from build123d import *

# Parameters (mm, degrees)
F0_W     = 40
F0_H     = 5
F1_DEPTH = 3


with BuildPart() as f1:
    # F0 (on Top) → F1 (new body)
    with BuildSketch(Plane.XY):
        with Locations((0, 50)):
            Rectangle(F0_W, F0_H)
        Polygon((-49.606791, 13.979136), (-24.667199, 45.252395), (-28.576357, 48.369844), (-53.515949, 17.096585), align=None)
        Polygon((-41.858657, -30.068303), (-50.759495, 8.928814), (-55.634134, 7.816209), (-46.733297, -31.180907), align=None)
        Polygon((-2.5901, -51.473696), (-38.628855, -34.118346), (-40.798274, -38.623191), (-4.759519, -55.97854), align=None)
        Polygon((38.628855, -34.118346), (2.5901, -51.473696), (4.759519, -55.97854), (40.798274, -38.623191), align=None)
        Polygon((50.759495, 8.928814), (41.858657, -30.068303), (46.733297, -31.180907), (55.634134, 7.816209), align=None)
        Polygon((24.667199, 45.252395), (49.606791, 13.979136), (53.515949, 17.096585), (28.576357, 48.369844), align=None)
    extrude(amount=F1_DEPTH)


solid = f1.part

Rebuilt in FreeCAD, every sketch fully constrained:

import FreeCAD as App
import Part
import Sketcher
from FreeCAD import Vector
Q = App.Units.Quantity


def add_polygon(sketch, points):
    """Adds a closed chain of lines whose ends are joined by coincident constraints."""
    first, n = sketch.GeometryCount, len(points)
    for a, b in zip(points, points[1:] + points[:1]):
        sketch.addGeometry(Part.LineSegment(App.Vector(*a, 0), App.Vector(*b, 0)), False)
    for i in range(n):
        sketch.addConstraint(Sketcher.Constraint("Coincident", first + i, 2, first + (i + 1) % n, 1))

doc = App.newDocument("Part")
body = doc.addObject("PartDesign::Body", "Body")
body.AllowCompound = True

sketch1 = body.newObject("Sketcher::SketchObject", "Sketch")
sketch1.AttachmentSupport = (doc.getObject("XY_Plane"), [""])
sketch1.MapMode = "FlatFace"
add_polygon(sketch1, [(-20, 52.5), (-20, 47.5), (20, 47.5), (20, 52.5)])
add_polygon(sketch1, [(-49.6, 14), (-24.7, 45.3), (-28.6, 48.4), (-53.5, 17.1)])
add_polygon(sketch1, [(-41.9, -30.1), (-50.8, 8.9), (-55.6, 7.8), (-46.7, -31.2)])
add_polygon(sketch1, [(-2.6, -51.5), (-38.6, -34.1), (-40.8, -38.6), (-4.8, -56)])
add_polygon(sketch1, [(38.6, -34.1), (2.6, -51.5), (4.8, -56), (40.8, -38.6)])
add_polygon(sketch1, [(50.8, 8.9), (41.9, -30.1), (46.7, -31.2), (55.6, 7.8)])
add_polygon(sketch1, [(24.7, 45.3), (49.6, 14), (53.5, 17.1), (28.6, 48.4)])
sketch1.addConstraint([
    Sketcher.Constraint("Vertical", 0),
    Sketcher.Constraint("Horizontal", 1),
    Sketcher.Constraint("Vertical", 2),
    Sketcher.Constraint("Horizontal", 3),
    Sketcher.Constraint("Symmetric", 15, 2, 16, 2, -2),
    Sketcher.Constraint("Symmetric", 14, 2, 17, 2, -2),
    Sketcher.Constraint("Symmetric", 13, 2, 18, 2, -2),
    Sketcher.Constraint("Symmetric", 12, 2, 19, 2, -2),
    Sketcher.Constraint("Symmetric", 11, 2, 20, 2, -2),
    Sketcher.Constraint("Symmetric", 10, 2, 21, 2, -2),
    Sketcher.Constraint("Symmetric", 9, 2, 22, 2, -2),
    Sketcher.Constraint("Symmetric", 8, 2, 23, 2, -2),
    Sketcher.Constraint("Symmetric", 7, 2, 24, 2, -2),
    Sketcher.Constraint("Symmetric", 6, 2, 25, 2, -2),
    Sketcher.Constraint("Symmetric", 5, 2, 26, 2, -2),
    Sketcher.Constraint("Symmetric", 4, 2, 27, 2, -2),
    Sketcher.Constraint("Perpendicular", 4, 5),
    Sketcher.Constraint("Perpendicular", 5, 6),
    Sketcher.Constraint("Perpendicular", 6, 7),
    Sketcher.Constraint("Perpendicular", 8, 9),
    Sketcher.Constraint("Perpendicular", 9, 10),
    Sketcher.Constraint("Perpendicular", 10, 11),
    Sketcher.Constraint("Perpendicular", 12, 13),
    Sketcher.Constraint("Perpendicular", 13, 14),
    Sketcher.Constraint("Perpendicular", 14, 15),
    Sketcher.Constraint("Equal", 6, 8),
    Sketcher.Constraint("Equal", 7, 9),
    Sketcher.Constraint("Equal", 10, 12),
    Sketcher.Constraint("Equal", 11, 13),
    Sketcher.Constraint("DistanceX", 1, 1, 1, 2, Q("40 mm")),
    Sketcher.Constraint("DistanceY", 0, 2, 0, 1, Q("5 mm")),
    Sketcher.Constraint("Distance", 4, Q("40 mm")),
    Sketcher.Constraint("Distance", 5, Q("5 mm")),
    Sketcher.Constraint("DistanceX", 0, 2, -1, 1, Q("20 mm")),
    Sketcher.Constraint("DistanceY", -1, 1, 0, 2, Q("47.5 mm")),
    Sketcher.Constraint("DistanceX", 4, 2, -1, 1, Q("24.667199 mm")),
    Sketcher.Constraint("DistanceX", 15, 2, -1, 1, Q("2.5901 mm")),
    Sketcher.Constraint("DistanceX", 8, 2, 10, 2, Q("4.026198 mm")),
    Sketcher.Constraint("DistanceX", 10, 2, 4, 2, Q("22.066098 mm")),
    Sketcher.Constraint("DistanceY", 10, 2, 4, 2, Q("76.433302 mm")),
    Sketcher.Constraint("DistanceX", 11, 2, 12, 2, Q("3.229802 mm")),
    Sketcher.Constraint("DistanceY", 13, 2, 9, 2, Q("46.4394 mm")),
    Sketcher.Constraint("DistanceX", 6, 2, -1, 1, Q("53.515949 mm")),
    Sketcher.Constraint("DistanceY", -1, 1, 9, 2, Q("7.816209 mm")),
])
pad1 = body.newObject("PartDesign::Pad", "Pad")
pad1.Profile = sketch1
pad1.Length = 3

doc.recompute()
